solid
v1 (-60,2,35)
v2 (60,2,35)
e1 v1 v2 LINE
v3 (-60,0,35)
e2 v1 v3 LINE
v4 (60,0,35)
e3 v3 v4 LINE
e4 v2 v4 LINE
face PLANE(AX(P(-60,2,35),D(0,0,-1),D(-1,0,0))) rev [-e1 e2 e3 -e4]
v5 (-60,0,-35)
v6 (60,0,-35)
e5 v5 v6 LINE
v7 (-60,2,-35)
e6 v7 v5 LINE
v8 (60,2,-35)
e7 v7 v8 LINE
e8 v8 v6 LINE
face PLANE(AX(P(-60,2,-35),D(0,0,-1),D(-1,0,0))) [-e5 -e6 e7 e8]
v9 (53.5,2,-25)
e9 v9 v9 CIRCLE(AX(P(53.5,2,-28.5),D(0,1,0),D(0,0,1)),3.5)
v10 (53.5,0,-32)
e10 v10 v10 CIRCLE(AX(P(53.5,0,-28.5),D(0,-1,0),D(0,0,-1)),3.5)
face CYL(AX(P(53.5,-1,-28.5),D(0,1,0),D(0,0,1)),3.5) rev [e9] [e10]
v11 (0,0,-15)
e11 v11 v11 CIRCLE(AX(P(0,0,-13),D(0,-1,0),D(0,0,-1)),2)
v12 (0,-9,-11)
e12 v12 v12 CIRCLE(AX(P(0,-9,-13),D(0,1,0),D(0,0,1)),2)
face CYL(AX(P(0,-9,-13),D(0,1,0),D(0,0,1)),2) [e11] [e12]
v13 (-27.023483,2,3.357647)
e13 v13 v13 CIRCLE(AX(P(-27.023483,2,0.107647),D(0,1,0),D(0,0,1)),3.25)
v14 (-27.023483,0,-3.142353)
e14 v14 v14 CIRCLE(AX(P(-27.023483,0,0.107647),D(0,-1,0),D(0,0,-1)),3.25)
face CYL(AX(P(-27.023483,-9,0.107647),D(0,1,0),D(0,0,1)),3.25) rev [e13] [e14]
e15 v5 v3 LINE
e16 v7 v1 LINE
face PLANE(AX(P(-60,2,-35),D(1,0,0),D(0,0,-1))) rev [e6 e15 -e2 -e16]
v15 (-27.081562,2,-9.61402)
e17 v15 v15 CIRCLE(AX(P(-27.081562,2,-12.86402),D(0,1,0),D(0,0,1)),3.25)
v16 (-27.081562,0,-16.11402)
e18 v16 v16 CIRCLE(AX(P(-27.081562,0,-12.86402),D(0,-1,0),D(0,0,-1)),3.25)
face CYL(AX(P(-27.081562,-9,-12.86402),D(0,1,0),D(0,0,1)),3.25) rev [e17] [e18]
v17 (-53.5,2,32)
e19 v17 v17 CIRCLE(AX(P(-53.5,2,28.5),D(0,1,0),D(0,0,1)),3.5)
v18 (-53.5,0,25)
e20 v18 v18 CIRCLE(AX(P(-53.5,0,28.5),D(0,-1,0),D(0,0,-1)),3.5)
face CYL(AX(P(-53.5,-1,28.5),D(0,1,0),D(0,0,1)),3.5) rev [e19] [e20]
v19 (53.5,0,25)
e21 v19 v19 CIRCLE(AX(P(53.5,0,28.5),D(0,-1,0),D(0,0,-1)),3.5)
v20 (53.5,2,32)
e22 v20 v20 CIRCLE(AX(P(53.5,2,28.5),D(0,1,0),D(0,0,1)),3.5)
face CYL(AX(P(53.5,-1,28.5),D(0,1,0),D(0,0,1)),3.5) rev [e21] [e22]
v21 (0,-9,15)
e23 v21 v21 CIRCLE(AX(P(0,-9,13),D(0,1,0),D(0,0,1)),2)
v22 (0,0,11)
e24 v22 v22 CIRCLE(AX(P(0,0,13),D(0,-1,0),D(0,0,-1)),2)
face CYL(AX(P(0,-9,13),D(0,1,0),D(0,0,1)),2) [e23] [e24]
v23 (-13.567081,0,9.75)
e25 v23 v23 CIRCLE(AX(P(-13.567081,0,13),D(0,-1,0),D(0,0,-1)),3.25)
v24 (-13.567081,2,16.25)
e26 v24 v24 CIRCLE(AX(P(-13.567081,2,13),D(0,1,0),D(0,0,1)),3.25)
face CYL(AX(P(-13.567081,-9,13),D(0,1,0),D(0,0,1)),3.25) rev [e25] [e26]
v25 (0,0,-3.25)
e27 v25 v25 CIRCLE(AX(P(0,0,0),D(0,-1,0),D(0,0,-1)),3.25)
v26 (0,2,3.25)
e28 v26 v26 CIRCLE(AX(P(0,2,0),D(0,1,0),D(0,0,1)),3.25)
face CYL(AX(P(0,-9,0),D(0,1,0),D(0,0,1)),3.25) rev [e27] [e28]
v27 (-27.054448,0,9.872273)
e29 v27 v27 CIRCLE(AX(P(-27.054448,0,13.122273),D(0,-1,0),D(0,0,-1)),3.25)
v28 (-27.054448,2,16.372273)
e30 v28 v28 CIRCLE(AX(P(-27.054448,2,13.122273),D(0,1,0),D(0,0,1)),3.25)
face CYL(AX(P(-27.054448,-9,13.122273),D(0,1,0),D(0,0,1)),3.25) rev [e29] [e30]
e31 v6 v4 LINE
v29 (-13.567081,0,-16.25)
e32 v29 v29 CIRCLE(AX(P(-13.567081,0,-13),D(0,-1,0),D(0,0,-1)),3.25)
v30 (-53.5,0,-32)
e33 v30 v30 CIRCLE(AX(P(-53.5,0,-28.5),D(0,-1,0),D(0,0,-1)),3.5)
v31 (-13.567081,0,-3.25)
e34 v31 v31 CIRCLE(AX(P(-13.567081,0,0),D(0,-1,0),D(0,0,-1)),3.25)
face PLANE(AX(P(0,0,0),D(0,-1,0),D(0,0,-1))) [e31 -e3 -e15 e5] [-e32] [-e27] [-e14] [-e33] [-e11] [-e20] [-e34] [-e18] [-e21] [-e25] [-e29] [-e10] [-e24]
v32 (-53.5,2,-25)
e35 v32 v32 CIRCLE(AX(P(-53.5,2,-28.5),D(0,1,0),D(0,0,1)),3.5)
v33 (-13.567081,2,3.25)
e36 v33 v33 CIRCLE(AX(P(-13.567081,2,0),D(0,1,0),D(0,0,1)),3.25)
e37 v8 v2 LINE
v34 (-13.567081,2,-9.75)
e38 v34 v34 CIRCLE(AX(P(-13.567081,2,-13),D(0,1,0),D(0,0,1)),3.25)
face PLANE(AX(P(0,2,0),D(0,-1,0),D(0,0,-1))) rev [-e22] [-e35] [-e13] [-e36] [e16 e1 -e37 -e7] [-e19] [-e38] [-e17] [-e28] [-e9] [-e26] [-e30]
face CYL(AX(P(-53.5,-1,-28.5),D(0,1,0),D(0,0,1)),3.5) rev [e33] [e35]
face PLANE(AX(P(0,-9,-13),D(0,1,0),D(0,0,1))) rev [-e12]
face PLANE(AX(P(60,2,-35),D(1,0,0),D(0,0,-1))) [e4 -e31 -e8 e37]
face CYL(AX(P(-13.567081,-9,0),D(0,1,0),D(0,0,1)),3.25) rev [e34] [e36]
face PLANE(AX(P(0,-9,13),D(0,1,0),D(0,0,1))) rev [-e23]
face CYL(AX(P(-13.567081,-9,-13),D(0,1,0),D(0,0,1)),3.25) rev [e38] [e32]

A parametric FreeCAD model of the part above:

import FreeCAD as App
import Part
import Sketcher
from FreeCAD import Vector
Q = App.Units.Quantity

doc = App.newDocument("Part")
body = doc.addObject("PartDesign::Body", "Body")

sketch1 = body.newObject("Sketcher::SketchObject", "Sketch")
sketch1.AttachmentSupport = (doc.getObject("XZ_Plane"), [""])
sketch1.MapMode = "FlatFace"
sketch1.addGeometry(Part.LineSegment(Vector(-60, -35, 0), Vector(-60, 35, 0)), False)
sketch1.addGeometry(Part.LineSegment(Vector(-60, 35, 0), Vector(60, 35, 0)), False)
sketch1.addGeometry(Part.LineSegment(Vector(60, 35, 0), Vector(60, -35, 0)), False)
sketch1.addGeometry(Part.LineSegment(Vector(60, -35, 0), Vector(-60, -35, 0)), False)
sketch1.addConstraint(Sketcher.Constraint("Coincident", 0, 2, 1, 1))
sketch1.addConstraint(Sketcher.Constraint("Coincident", 1, 2, 2, 1))
sketch1.addConstraint(Sketcher.Constraint("Coincident", 2, 2, 3, 1))
sketch1.addConstraint(Sketcher.Constraint("Coincident", 3, 2, 0, 1))
sketch1.addConstraint(Sketcher.Constraint("Vertical", 0))
sketch1.addConstraint(Sketcher.Constraint("Horizontal", 1))
sketch1.addConstraint(Sketcher.Constraint("Vertical", 2))
sketch1.addConstraint(Sketcher.Constraint("Horizontal", 3))
sketch1.addConstraint(Sketcher.Constraint("Symmetric", 0, 2, 2, 2, -1, 1))
sketch1.addConstraint(Sketcher.Constraint("DistanceX", 1, 1, 1, 2, Q("120 mm")))
sketch1.addConstraint(Sketcher.Constraint("DistanceY", 0, 1, 0, 2, Q("70 mm")))
pad1 = body.newObject("PartDesign::Pad", "Pad")
pad1.Profile = sketch1
pad1.Length = 2
pad1.Reversed = True

sketch2 = body.newObject("Sketcher::SketchObject", "Sketch001")
sketch2.AttachmentSupport = (doc.getObject("XZ_Plane"), [""])
sketch2.MapMode = "FlatFace"
sketch2.AttachmentOffset = App.Placement(Vector(0, 0, -2), App.Rotation())
sketch2.addGeometry(Part.Circle(Vector(-53.5, -28.5, 0), Vector(0, 0, 1), 3.5), False)
sketch2.addGeometry(Part.Circle(Vector(53.5, -28.5, 0), Vector(0, 0, 1), 3.5), False)
sketch2.addGeometry(Part.Circle(Vector(-53.5, 28.5, 0), Vector(0, 0, 1), 3.5), False)
sketch2.addGeometry(Part.Circle(Vector(53.5, 28.5, 0), Vector(0, 0, 1), 3.5), False)
sketch2.addConstraint(Sketcher.Constraint("Equal", 0, 1))
sketch2.addConstraint(Sketcher.Constraint("Equal", 1, 2))
sketch2.addConstraint(Sketcher.Constraint("Equal", 2, 3))
sketch2.addConstraint(Sketcher.Constraint("Symmetric", 1, 3, 2, 3, -1, 1))
sketch2.addConstraint(Sketcher.Constraint("Symmetric", 0, 3, 3, 3, -1, 1))
sketch2.addConstraint(Sketcher.Constraint("Symmetric", 0, 3, 1, 3, -2))
sketch2.addConstraint(Sketcher.Constraint("Diameter", 0, Q("7 mm")))
sketch2.addConstraint(Sketcher.Constraint("DistanceX", 0, 3, 1, 3, Q("107 mm")))
sketch2.addConstraint(Sketcher.Constraint("DistanceY", 0, 3, 2, 3, Q("57 mm")))
pocket1 = body.newObject("PartDesign::Pocket", "Pocket")
pocket1.Profile = sketch2
pocket1.Length = 3
pocket1.Reversed = True

sketch3 = body.newObject("Sketcher::SketchObject", "Sketch002")
sketch3.AttachmentSupport = (doc.getObject("XZ_Plane"), [""])
sketch3.MapMode = "FlatFace"
sketch3.AttachmentOffset = App.Placement(Vector(0, 0, -2), App.Rotation())
sketch3.addGeometry(Part.Circle(Vector(0, 13, 0), Vector(0, 0, 1), 2), False)
sketch3.addGeometry(Part.Circle(Vector(0, -13, 0), Vector(0, 0, 1), 2), False)
sketch3.addConstraint(Sketcher.Constraint("Equal", 0, 1))
sketch3.addConstraint(Sketcher.Constraint("Symmetric", 0, 3, 1, 3, -1, 1))
sketch3.addConstraint(Sketcher.Constraint("PointOnObject", 0, 3, -2))
sketch3.addConstraint(Sketcher.Constraint("Diameter", 0, Q("4 mm")))
sketch3.addConstraint(Sketcher.Constraint("DistanceY", -1, 1, 0, 3, Q("13 mm")))
pad2 = body.newObject("PartDesign::Pad", "Pad001")
pad2.Profile = sketch3
pad2.Length = 11

sketch4 = body.newObject("Sketcher::SketchObject", "Sketch003")
sketch4.AttachmentSupport = (doc.getObject("XZ_Plane"), [""])
sketch4.MapMode = "FlatFace"
sketch4.AttachmentOffset = App.Placement(Vector(0, 0, -2), App.Rotation())
sketch4.addGeometry(Part.Circle(Vector(-27.1, 13.1, 0), Vector(0, 0, 1), 3.2), False)
sketch4.addGeometry(Part.Circle(Vector(-27, 0.1, 0), Vector(0, 0, 1), 3.2), False)
sketch4.addGeometry(Part.Circle(Vector(-27.1, -12.9, 0), Vector(0, 0, 1), 3.2), False)
sketch4.addGeometry(Part.Circle(Vector(-13.6, 0, 0), Vector(0, 0, 1), 3.2), False)
sketch4.addGeometry(Part.Circle(Vector(-13.6, 13, 0), Vector(0, 0, 1), 3.2), False)
sketch4.addGeometry(Part.Circle(Vector(-13.6, -13, 0), Vector(0, 0, 1), 3.2), False)
sketch4.addGeometry(Part.Circle(Vector(0, 0, 0), Vector(0, 0, 1), 3.2), False)
sketch4.addConstraint(Sketcher.Constraint("Coincident", 6, 3, -1, 1))
sketch4.addConstraint(Sketcher.Constraint("Equal", 0, 1))
sketch4.addConstraint(Sketcher.Constraint("Equal", 1, 2))
sketch4.addConstraint(Sketcher.Constraint("Equal", 2, 3))
sketch4.addConstraint(Sketcher.Constraint("Equal", 3, 4))
sketch4.addConstraint(Sketcher.Constraint("Equal", 4, 5))
sketch4.addConstraint(Sketcher.Constraint("Equal", 5, 6))
sketch4.addConstraint(Sketcher.Constraint("Symmetric", 4, 3, 5, 3, -1))
sketch4.addConstraint(Sketcher.Constraint("PointOnObject", 3, 3, -1))
sketch4.addConstraint(Sketcher.Constraint("Vertical", 3, 3, 4, 3))
sketch4.addConstraint(Sketcher.Constraint("Diameter", 0, Q("6.5 mm")))
sketch4.addConstraint(Sketcher.Constraint("DistanceY", -1, 1, 4, 3, Q("13 mm")))
sketch4.addConstraint(Sketcher.Constraint("DistanceX", 1, 3, 3, 3, Q("13.456402 mm")))
sketch4.addConstraint(Sketcher.Constraint("DistanceX", 0, 3, -1, 1, Q("27.054448 mm")))
sketch4.addConstraint(Sketcher.Constraint("DistanceY", 2, 3, -1, 1, Q("12.86402 mm")))
sketch4.addConstraint(Sketcher.Constraint("DistanceX", 3, 3, -1, 1, Q("13.567081 mm")))
sketch4.addConstraint(Sketcher.Constraint("DistanceX", 2, 3, 1, 3, Q("0.058079 mm")))
sketch4.addConstraint(Sketcher.Constraint("DistanceY", -1, 1, 0, 3, Q("13.122273 mm")))
sketch4.addConstraint(Sketcher.Constraint("DistanceY", -1, 1, 1, 3, Q("0.107647 mm")))
pocket2 = body.newObject("PartDesign::Pocket", "Pocket001")
pocket2.Profile = sketch4
pocket2.Length = 11
pocket2.Reversed = True

doc.recompute()
